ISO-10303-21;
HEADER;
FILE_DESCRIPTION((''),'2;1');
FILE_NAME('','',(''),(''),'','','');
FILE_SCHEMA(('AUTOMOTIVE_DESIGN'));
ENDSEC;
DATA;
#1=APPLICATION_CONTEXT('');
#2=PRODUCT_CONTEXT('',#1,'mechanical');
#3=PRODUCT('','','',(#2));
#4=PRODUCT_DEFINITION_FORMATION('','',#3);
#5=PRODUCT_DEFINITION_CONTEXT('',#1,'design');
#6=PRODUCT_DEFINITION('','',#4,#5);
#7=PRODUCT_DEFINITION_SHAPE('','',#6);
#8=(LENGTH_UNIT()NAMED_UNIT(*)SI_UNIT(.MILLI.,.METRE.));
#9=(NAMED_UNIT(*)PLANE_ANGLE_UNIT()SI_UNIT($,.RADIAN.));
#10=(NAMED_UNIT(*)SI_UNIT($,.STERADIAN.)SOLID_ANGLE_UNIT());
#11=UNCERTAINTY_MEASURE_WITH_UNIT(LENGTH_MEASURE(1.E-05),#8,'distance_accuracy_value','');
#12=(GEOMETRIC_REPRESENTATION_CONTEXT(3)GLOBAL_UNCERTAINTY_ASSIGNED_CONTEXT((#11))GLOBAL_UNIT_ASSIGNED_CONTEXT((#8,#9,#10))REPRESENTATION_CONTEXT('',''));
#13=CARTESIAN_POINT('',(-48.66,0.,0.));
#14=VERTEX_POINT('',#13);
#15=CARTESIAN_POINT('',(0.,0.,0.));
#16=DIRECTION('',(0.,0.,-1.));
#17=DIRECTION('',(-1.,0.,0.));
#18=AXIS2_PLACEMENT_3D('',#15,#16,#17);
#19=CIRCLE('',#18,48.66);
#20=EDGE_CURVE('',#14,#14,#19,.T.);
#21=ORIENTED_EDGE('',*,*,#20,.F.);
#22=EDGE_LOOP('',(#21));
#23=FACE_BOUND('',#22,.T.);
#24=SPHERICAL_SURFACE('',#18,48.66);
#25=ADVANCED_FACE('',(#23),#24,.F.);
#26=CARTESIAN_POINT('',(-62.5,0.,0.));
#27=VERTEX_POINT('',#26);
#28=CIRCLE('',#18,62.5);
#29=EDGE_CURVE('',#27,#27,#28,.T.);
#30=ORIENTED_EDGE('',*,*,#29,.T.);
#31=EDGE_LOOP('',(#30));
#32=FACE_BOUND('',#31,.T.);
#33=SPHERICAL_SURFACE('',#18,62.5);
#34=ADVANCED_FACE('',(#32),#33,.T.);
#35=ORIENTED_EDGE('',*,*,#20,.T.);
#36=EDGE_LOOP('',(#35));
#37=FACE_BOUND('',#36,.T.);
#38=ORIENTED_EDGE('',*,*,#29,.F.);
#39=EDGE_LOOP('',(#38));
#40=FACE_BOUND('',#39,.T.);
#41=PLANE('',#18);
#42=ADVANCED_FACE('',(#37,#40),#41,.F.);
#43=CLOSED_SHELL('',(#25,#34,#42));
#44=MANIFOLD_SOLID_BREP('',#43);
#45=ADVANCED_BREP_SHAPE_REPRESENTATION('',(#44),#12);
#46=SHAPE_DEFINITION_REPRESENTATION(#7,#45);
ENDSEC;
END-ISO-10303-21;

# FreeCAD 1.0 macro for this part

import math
import FreeCAD as App
import Part
import Sketcher
Q = App.Units.Quantity

doc = App.newDocument("Part")
body = doc.addObject("PartDesign::Body", "Body")

sketch1 = body.newObject("Sketcher::SketchObject", "Sketch")
sketch1.AttachmentSupport = (doc.getObject("XY_Plane"), [""])
sketch1.MapMode = "FlatFace"
sketch1.addGeometry(Part.LineSegment(App.Vector(0, 62.5, 0), App.Vector(0, -62.5, 0)), False)
sketch1.addGeometry(Part.ArcOfCircle(Part.Circle(App.Vector(0, 0, 0), App.Vector(0, 0, 1), 62.5), math.radians(-90), math.radians(90)), False)
sketch1.addConstraint(Sketcher.Constraint("Coincident", 0, 1, 1, 2))
sketch1.addConstraint(Sketcher.Constraint("Coincident", 1, 1, 0, 2))
sketch1.addConstraint(Sketcher.Constraint("Vertical", 0))
sketch1.addConstraint(Sketcher.Constraint("Coincident", 1, 3, -1, 1))
sketch1.addConstraint(Sketcher.Constraint("PointOnObject", 0, 1, -2))
sketch1.addConstraint(Sketcher.Constraint("Radius", 1, Q("62.5 mm")))
revolution = body.newObject("PartDesign::Revolution", "Revolution")
revolution.Profile = sketch1
revolution.ReferenceAxis = (sketch1, ["V_Axis"])
revolution.Angle = 180

sketch2 = body.newObject("Sketcher::SketchObject", "Sketch001")
sketch2.AttachmentSupport = (doc.getObject("XY_Plane"), [""])
sketch2.MapMode = "FlatFace"
sketch2.addGeometry(Part.LineSegment(App.Vector(0, 48.66, 0), App.Vector(0, -48.66, 0)), False)
sketch2.addGeometry(Part.ArcOfCircle(Part.Circle(App.Vector(0, 0, 0), App.Vector(0, 0, 1), 48.66), math.radians(-90), math.radians(90)), False)
sketch2.addConstraint(Sketcher.Constraint("Coincident", 0, 1, 1, 2))
sketch2.addConstraint(Sketcher.Constraint("Coincident", 1, 1, 0, 2))
sketch2.addConstraint(Sketcher.Constraint("Vertical", 0))
sketch2.addConstraint(Sketcher.Constraint("Coincident", 1, 3, -1, 1))
sketch2.addConstraint(Sketcher.Constraint("PointOnObject", 0, 1, -2))
sketch2.addConstraint(Sketcher.Constraint("Radius", 1, Q("48.66 mm")))
groove = body.newObject("PartDesign::Groove", "Groove")
groove.Profile = sketch2
groove.ReferenceAxis = (sketch2, ["V_Axis"])
groove.Angle = 180

doc.recompute()
